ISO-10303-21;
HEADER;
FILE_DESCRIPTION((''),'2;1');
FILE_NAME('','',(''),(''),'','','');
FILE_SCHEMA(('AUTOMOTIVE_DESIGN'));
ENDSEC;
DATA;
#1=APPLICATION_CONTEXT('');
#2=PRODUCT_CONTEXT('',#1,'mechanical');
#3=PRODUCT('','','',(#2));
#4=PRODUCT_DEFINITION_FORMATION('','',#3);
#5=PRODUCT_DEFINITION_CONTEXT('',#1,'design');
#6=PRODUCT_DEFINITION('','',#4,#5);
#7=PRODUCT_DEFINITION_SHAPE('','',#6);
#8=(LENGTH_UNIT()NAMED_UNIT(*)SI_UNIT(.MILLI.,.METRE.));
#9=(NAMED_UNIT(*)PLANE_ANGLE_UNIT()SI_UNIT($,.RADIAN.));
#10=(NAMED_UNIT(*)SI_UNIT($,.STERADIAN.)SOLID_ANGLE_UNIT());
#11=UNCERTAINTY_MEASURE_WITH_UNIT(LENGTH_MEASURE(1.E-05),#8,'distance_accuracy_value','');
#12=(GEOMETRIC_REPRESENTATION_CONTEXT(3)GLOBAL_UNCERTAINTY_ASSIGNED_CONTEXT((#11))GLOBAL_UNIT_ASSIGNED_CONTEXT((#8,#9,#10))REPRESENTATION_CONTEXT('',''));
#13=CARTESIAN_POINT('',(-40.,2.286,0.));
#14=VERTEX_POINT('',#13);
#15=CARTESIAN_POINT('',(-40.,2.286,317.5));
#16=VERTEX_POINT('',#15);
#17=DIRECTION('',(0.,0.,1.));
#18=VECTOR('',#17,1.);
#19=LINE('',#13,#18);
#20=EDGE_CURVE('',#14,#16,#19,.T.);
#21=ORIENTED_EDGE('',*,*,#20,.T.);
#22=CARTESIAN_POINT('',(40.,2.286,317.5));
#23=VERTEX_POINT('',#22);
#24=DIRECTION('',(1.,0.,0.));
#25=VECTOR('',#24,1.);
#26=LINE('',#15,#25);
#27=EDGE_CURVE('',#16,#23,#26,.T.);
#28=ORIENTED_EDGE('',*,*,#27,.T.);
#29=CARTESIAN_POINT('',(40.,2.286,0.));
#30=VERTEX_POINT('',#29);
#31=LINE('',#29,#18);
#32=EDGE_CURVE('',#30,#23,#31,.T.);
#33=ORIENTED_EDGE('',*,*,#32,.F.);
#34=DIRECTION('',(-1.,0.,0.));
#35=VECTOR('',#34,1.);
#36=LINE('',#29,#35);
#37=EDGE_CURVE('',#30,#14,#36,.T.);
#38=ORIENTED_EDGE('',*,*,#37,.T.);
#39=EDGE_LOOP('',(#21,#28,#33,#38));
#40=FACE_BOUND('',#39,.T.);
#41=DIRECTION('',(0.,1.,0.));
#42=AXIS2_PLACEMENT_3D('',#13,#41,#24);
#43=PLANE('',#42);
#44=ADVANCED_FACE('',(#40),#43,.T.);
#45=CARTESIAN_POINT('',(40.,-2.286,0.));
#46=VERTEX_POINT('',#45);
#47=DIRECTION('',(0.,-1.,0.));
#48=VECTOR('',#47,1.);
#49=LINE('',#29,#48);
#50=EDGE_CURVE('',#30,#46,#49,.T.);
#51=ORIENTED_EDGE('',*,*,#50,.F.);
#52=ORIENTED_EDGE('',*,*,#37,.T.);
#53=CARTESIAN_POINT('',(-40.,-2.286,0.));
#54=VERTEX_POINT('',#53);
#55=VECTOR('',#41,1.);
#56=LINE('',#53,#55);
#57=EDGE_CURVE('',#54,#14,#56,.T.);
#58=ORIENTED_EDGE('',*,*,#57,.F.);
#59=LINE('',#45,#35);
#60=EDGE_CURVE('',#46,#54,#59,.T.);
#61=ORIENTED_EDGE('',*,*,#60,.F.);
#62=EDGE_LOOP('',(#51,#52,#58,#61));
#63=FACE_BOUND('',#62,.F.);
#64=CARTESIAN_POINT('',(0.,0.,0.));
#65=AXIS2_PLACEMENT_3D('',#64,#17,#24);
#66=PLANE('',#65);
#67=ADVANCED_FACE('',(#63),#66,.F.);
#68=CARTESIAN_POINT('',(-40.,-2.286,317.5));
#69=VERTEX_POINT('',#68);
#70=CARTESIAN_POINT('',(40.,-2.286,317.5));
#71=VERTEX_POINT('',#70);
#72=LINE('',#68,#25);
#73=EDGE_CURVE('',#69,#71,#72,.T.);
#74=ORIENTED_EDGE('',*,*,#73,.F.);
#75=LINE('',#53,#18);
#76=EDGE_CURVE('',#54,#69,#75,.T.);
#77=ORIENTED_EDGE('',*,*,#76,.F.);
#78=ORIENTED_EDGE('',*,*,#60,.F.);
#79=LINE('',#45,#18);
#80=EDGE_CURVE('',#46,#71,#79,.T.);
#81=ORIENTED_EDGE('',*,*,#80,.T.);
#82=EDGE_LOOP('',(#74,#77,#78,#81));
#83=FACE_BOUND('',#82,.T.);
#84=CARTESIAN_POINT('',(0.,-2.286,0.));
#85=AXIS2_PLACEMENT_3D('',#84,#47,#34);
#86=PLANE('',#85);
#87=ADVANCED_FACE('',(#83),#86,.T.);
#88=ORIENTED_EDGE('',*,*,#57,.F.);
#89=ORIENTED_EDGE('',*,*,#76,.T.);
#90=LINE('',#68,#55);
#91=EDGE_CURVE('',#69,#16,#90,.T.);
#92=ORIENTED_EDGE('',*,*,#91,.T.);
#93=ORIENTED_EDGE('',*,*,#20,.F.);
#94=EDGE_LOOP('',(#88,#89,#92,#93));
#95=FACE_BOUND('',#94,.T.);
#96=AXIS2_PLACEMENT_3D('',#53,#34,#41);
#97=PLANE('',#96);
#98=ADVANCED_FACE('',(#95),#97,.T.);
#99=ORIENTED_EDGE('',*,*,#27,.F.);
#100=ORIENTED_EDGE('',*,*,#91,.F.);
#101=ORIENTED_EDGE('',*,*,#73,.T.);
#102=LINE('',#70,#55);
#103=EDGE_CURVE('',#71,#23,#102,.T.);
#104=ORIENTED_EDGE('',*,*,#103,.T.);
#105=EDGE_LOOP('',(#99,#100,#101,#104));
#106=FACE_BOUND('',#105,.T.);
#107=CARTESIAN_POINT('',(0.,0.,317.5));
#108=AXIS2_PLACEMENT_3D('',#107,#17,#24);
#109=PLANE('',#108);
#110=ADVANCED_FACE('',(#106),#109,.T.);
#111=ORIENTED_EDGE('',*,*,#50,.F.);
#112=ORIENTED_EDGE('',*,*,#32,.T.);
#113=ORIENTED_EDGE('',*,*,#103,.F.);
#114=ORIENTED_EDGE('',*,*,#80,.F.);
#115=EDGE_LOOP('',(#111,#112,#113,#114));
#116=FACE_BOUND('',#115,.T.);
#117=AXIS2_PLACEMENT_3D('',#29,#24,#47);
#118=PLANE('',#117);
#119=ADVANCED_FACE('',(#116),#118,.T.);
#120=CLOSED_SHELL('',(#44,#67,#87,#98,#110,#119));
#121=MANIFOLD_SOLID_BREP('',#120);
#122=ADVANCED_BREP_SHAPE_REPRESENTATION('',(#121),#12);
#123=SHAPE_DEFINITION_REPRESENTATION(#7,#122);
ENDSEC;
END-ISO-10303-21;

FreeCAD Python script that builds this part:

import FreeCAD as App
import Part
import Sketcher
Q = App.Units.Quantity


def add_polygon(sketch, points):
    """Adds a closed chain of lines whose ends are joined by coincident constraints."""
    first, n = sketch.GeometryCount, len(points)
    for a, b in zip(points, points[1:] + points[:1]):
        sketch.addGeometry(Part.LineSegment(App.Vector(*a, 0), App.Vector(*b, 0)), False)
    for i in range(n):
        sketch.addConstraint(Sketcher.Constraint("Coincident", first + i, 2, first + (i + 1) % n, 1))

doc = App.newDocument("Part")
params = doc.addObject("Spreadsheet::Sheet", "Params")
for row, (alias, value) in enumerate([
    ("sketch1_height", "0.18 in"),
    ("pad1_length", "12.5 in"),
], start=1):
    params.set(f"A{row}", alias)
    params.set(f"B{row}", "=" + value)
    params.setAlias(f"B{row}", alias)

body = doc.addObject("PartDesign::Body", "Body")

# Sketch on XY plane
sketch1 = body.newObject("Sketcher::SketchObject", "Sketch")
sketch1.AttachmentSupport = (doc.getObject("XY_Plane"), [""])
sketch1.MapMode = "FlatFace"
add_polygon(sketch1, [(-40, 2.286), (-40, -2.286), (40, -2.286), (40, 2.286)])  # lines 0-3
sketch1.addConstraint([
    Sketcher.Constraint("Vertical", 0),
    Sketcher.Constraint("Horizontal", 1),
    Sketcher.Constraint("Vertical", 2),
    Sketcher.Constraint("Horizontal", 3),
    Sketcher.Constraint("Symmetric", 0, 2, 2, 2, -1, 1),
    Sketcher.Constraint("DistanceY", 0, 2, 0, 1, Q("0.18 in")),
    Sketcher.Constraint("DistanceX", 1, 1, 1, 2, Q("3.1496 in")),
])
sketch1.setExpression("Constraints[9]", "Params.sketch1_height")
pad1 = body.newObject("PartDesign::Pad", "Pad")
pad1.Profile = sketch1
pad1.setExpression("Length", "Params.pad1_length")

doc.recompute()
